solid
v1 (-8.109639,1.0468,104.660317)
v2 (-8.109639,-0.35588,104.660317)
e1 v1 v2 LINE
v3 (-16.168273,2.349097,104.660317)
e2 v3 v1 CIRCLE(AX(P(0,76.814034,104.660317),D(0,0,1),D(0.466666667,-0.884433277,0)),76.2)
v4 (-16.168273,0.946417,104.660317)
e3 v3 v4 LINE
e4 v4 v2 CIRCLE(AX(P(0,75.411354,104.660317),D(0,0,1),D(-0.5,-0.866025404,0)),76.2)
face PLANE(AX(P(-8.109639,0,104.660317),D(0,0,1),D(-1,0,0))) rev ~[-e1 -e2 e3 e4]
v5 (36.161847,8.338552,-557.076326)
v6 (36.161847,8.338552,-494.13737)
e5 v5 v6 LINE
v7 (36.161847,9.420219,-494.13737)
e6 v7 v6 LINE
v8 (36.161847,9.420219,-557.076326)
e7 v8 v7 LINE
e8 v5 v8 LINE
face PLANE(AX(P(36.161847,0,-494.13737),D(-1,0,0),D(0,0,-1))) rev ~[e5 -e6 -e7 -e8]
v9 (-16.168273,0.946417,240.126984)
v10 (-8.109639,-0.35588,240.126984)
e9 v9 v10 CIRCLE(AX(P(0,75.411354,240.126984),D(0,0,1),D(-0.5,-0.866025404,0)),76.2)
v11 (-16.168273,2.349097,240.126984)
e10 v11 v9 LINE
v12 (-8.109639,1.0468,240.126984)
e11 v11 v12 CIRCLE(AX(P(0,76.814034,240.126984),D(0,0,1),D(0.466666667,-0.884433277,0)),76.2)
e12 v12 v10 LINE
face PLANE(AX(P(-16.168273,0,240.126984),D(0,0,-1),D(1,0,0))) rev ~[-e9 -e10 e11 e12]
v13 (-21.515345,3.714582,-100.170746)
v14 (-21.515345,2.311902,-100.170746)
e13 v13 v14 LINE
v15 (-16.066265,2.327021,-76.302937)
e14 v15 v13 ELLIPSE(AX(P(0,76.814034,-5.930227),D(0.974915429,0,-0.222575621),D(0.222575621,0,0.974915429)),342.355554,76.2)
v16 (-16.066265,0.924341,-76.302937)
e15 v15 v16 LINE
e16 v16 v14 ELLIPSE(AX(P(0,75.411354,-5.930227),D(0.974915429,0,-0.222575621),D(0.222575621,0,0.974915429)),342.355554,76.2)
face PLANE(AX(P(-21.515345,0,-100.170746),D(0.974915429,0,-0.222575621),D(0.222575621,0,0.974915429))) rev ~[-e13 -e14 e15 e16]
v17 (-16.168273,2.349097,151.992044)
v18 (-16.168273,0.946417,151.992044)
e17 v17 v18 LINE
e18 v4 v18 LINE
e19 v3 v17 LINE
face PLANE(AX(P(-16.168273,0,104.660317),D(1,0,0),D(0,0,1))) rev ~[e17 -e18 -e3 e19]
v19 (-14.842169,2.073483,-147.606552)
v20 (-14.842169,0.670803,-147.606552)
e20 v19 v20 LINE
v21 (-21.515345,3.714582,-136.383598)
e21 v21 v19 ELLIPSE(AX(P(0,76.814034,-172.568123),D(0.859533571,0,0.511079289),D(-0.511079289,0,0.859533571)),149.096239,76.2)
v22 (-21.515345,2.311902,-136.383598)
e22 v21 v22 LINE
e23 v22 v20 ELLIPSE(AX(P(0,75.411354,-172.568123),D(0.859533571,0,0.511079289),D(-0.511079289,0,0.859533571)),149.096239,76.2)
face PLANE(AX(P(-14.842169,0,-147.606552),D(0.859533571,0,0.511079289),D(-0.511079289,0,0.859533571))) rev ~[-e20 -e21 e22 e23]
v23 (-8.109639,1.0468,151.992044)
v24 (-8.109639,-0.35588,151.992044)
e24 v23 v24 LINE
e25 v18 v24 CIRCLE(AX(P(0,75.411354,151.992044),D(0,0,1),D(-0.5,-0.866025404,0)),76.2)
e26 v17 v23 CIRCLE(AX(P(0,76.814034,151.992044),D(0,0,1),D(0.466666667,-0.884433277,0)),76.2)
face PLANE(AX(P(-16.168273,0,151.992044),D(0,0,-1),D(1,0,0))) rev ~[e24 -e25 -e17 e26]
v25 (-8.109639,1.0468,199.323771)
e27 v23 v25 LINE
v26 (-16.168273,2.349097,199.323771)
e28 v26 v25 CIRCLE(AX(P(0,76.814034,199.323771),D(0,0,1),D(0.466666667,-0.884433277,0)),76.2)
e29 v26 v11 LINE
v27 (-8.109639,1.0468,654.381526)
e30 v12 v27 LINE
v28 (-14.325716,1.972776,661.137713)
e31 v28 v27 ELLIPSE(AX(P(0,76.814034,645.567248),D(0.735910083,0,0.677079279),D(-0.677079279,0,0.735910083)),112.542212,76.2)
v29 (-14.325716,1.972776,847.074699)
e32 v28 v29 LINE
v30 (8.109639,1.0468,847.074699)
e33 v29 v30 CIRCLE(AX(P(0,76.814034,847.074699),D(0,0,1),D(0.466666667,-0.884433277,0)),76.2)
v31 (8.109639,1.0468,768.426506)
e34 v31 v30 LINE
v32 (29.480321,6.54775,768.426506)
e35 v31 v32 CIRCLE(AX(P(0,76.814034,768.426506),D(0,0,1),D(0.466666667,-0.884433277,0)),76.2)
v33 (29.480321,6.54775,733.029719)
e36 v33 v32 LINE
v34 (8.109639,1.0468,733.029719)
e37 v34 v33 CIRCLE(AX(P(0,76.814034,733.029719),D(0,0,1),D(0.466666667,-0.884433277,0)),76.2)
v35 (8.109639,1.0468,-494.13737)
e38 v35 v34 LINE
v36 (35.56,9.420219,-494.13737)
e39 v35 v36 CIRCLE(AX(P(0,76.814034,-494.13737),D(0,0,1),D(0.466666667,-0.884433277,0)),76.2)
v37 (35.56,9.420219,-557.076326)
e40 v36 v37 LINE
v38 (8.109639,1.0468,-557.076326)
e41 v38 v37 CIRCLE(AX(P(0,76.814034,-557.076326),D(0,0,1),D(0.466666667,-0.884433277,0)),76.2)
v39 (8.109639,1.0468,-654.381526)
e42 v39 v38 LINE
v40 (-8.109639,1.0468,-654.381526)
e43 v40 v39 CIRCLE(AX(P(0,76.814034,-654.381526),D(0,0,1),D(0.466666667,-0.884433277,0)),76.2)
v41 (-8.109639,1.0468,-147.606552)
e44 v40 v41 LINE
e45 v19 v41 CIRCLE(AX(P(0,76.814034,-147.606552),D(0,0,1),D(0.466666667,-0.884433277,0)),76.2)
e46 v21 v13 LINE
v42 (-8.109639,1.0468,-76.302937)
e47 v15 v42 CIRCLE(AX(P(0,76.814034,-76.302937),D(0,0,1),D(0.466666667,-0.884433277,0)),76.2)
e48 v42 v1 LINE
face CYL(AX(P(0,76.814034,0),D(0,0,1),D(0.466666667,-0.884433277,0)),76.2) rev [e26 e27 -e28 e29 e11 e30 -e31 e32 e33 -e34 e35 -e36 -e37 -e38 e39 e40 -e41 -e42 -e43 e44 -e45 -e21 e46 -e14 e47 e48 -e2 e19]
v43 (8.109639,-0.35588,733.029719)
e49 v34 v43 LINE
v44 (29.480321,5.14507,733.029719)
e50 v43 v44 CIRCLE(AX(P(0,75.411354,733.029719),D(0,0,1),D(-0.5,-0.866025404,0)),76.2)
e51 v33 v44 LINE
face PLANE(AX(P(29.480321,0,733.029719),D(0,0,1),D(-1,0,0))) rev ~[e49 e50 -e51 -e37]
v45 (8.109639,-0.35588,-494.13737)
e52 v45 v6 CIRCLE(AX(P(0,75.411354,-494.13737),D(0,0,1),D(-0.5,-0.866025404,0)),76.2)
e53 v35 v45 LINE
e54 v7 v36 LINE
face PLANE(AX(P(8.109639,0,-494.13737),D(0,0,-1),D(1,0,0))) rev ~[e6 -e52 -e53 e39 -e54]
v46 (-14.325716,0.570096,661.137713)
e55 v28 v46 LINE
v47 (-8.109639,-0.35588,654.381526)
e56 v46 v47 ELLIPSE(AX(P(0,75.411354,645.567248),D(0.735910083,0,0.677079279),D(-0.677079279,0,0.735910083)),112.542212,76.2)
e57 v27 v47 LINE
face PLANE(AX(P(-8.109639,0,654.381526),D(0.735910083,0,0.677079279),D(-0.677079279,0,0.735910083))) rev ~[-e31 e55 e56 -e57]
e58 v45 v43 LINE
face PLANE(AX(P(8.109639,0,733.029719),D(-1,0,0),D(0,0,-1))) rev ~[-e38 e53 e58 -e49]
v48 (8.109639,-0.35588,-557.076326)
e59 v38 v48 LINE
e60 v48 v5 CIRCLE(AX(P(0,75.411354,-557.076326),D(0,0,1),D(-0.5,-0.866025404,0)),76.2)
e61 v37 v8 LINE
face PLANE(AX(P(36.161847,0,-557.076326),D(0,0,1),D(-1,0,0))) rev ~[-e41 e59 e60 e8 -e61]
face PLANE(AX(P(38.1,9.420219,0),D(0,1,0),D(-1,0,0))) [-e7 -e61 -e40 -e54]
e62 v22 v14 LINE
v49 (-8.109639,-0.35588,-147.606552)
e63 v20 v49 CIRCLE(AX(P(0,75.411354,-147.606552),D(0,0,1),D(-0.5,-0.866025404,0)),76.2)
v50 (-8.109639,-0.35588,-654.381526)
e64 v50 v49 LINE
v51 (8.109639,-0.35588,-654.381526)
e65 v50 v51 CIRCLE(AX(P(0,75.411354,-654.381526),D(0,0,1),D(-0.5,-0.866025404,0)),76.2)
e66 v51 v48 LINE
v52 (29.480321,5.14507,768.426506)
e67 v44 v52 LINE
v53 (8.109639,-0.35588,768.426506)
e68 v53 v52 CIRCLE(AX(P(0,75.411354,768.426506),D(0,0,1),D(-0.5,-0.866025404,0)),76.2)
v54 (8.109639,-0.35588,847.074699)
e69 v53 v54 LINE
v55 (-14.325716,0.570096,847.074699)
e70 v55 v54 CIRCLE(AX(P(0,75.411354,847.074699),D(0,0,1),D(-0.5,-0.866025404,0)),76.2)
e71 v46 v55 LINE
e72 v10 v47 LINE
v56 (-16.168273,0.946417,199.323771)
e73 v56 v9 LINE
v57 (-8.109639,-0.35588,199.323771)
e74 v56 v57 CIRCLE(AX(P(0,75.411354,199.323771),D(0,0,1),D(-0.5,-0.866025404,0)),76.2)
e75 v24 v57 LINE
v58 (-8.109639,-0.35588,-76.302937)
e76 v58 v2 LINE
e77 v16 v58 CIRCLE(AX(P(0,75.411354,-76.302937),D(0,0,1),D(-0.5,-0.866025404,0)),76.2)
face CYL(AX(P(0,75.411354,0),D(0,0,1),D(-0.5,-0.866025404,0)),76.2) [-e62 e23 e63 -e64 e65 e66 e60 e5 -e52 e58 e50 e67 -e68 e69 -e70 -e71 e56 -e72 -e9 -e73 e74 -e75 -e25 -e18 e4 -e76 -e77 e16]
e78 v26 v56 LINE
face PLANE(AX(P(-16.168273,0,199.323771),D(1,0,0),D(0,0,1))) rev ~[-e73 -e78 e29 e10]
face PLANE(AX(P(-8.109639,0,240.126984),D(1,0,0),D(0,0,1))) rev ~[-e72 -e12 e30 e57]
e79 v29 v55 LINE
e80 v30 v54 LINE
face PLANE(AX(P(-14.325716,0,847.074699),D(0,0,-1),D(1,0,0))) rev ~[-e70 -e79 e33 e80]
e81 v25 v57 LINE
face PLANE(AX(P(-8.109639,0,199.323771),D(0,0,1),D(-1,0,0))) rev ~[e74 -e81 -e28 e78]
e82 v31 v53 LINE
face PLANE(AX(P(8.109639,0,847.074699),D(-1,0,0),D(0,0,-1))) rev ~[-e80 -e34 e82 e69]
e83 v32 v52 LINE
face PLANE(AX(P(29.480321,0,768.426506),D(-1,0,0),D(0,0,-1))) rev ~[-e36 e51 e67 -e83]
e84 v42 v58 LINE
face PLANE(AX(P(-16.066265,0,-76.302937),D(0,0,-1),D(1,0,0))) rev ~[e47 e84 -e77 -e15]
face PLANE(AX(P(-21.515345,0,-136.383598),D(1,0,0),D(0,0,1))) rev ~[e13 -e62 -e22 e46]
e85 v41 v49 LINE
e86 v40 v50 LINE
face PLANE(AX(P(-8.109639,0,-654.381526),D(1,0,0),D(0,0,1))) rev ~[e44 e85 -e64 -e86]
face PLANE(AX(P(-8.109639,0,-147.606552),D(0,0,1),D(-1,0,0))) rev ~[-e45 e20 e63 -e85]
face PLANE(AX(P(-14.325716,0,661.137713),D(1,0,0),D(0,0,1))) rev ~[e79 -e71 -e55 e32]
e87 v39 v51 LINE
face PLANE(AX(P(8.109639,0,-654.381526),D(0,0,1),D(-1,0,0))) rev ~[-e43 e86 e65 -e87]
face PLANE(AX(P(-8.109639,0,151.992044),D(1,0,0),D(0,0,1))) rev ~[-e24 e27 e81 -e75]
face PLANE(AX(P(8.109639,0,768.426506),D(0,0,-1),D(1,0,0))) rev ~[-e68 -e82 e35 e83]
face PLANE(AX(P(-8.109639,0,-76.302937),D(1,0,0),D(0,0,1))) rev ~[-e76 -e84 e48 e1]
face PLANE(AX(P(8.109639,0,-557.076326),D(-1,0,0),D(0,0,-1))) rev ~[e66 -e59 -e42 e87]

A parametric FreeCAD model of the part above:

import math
import FreeCAD as App
import Part
import Sketcher
Q = App.Units.Quantity

doc = App.newDocument("Part")
body = doc.addObject("PartDesign::Body", "Body")

# Sketch on XY plane
sketch1 = doc.addObject("Sketcher::SketchObject", "Sketch")
body.addObject(sketch1)
sketch1.AttachmentSupport = (doc.XY_Plane, [""])
sketch1.MapMode = "FlatFace"
sketch1.addGeometry([
    Part.LineSegment(App.Vector(-35.6, 9.4, 0), App.Vector(-38.1, 9.4, 0)),  # 0
    Part.ArcOfCircle(Part.Circle(App.Vector(0, 75.4, 0), App.Vector(0, 0, 1), 76.2), math.radians(-120), math.radians(-90)),  # 1
    Part.ArcOfCircle(Part.Circle(App.Vector(0, 75.4, 0), App.Vector(0, 0, 1), 76.2), math.radians(-90), math.radians(-60)),  # 2
    Part.LineSegment(App.Vector(38.1, 9.4, 0), App.Vector(35.6, 9.4, 0)),  # 3
    Part.ArcOfCircle(Part.Circle(App.Vector(0, 76.8, 0), App.Vector(0, 0, 1), 76.2), math.radians(-118), math.radians(-62)),  # 4
], False)
sketch1.addConstraint([
    Sketcher.Constraint("Coincident", 0, 2, 1, 1),
    Sketcher.Constraint("Tangent", 1, 2, 2, 1),
    Sketcher.Constraint("Coincident", 2, 2, 3, 1),
    Sketcher.Constraint("Coincident", 3, 2, 4, 2),
    Sketcher.Constraint("Coincident", 4, 1, 0, 1),
    Sketcher.Constraint("Horizontal", 0),
    Sketcher.Constraint("Horizontal", 3),
    Sketcher.Constraint("Equal", 1, 2),
    Sketcher.Constraint("Equal", 2, 4),
    Sketcher.Constraint("Symmetric", 0, 2, 2, 2, -2),
    Sketcher.Constraint("PointOnObject", 4, 3, -2),
    Sketcher.Constraint("PointOnObject", 1, 2, -2),
    Sketcher.Constraint("Radius", 1, Q("3 in")),
    Sketcher.Constraint("DistanceX", 0, 2, 0, 1, Q("0.1 in")),
    Sketcher.Constraint("DistanceX", 0, 2, 2, 2, Q("3 in")),
    Sketcher.Constraint("DistanceY", -1, 1, 0, 2, 9.420219),
])
pad1 = doc.addObject("PartDesign::Pad", "Pad")
body.addObject(pad1)
pad1.Profile = sketch1
pad1.Length = Q("100 in")
pad1.Midplane = True

# Sketch on XZ plane
sketch2 = doc.addObject("Sketcher::SketchObject", "Sketch001")
body.addObject(sketch2)
sketch2.AttachmentSupport = (doc.XZ_Plane, [""])
sketch2.MapMode = "FlatFace"
sketch2.addGeometry([
    Part.LineSegment(App.Vector(-936, 1614, 0), App.Vector(-936, -1499, 0)),  # 0
    Part.LineSegment(App.Vector(-936, -1499, 0), App.Vector(1044, -1499, 0)),  # 1
    Part.LineSegment(App.Vector(1044, -1499, 0), App.Vector(1044, 1614, 0)),  # 2
    Part.LineSegment(App.Vector(1044, 1614, 0), App.Vector(-936, 1614, 0)),  # 3
    Part.LineSegment(App.Vector(36, -557, 0), App.Vector(8, -557, 0)),  # 4
    Part.LineSegment(App.Vector(8, -557, 0), App.Vector(8, -654, 0)),  # 5
    Part.LineSegment(App.Vector(8, -654, 0), App.Vector(-8, -654, 0)),  # 6
    Part.LineSegment(App.Vector(-8, -654, 0), App.Vector(-8, -148, 0)),  # 7
    Part.LineSegment(App.Vector(-8, -148, 0), App.Vector(-15, -148, 0)),  # 8
    Part.LineSegment(App.Vector(-15, -148, 0), App.Vector(-22, -136, 0)),  # 9
    Part.LineSegment(App.Vector(-22, -136, 0), App.Vector(-22, -100, 0)),  # 10
    Part.LineSegment(App.Vector(-22, -100, 0), App.Vector(-16, -76, 0)),  # 11
    Part.LineSegment(App.Vector(-16, -76, 0), App.Vector(-8, -76, 0)),  # 12
    Part.LineSegment(App.Vector(-8, -76, 0), App.Vector(-8, 105, 0)),  # 13
    Part.LineSegment(App.Vector(-8, 105, 0), App.Vector(-16, 105, 0)),  # 14
    Part.LineSegment(App.Vector(-16, 105, 0), App.Vector(-16, 152, 0)),  # 15
    Part.LineSegment(App.Vector(-16, 152, 0), App.Vector(-8, 152, 0)),  # 16
    Part.LineSegment(App.Vector(-8, 152, 0), App.Vector(-8, 199, 0)),  # 17
    Part.LineSegment(App.Vector(-8, 199, 0), App.Vector(-16, 199, 0)),  # 18
    Part.LineSegment(App.Vector(-16, 199, 0), App.Vector(-16, 240, 0)),  # 19
    Part.LineSegment(App.Vector(-16, 240, 0), App.Vector(-8, 240, 0)),  # 20
    Part.LineSegment(App.Vector(-8, 240, 0), App.Vector(-8, 654, 0)),  # 21
    Part.LineSegment(App.Vector(-8, 654, 0), App.Vector(-14, 661, 0)),  # 22
    Part.LineSegment(App.Vector(-14, 661, 0), App.Vector(-14, 847, 0)),  # 23
    Part.LineSegment(App.Vector(-14, 847, 0), App.Vector(8, 847, 0)),  # 24
    Part.LineSegment(App.Vector(8, 847, 0), App.Vector(8, 768, 0)),  # 25
    Part.LineSegment(App.Vector(8, 768, 0), App.Vector(29, 768, 0)),  # 26
    Part.LineSegment(App.Vector(29, 768, 0), App.Vector(29, 733, 0)),  # 27
    Part.LineSegment(App.Vector(29, 733, 0), App.Vector(8, 733, 0)),  # 28
    Part.LineSegment(App.Vector(8, 733, 0), App.Vector(8, -494, 0)),  # 29
    Part.LineSegment(App.Vector(8, -494, 0), App.Vector(36, -494, 0)),  # 30
    Part.LineSegment(App.Vector(36, -494, 0), App.Vector(36, -557, 0)),  # 31
], False)
sketch2.addConstraint([
    Sketcher.Constraint("Coincident", 0, 2, 1, 1),
    Sketcher.Constraint("Coincident", 1, 2, 2, 1),
    Sketcher.Constraint("Coincident", 2, 2, 3, 1),
    Sketcher.Constraint("Coincident", 3, 2, 0, 1),
    Sketcher.Constraint("Coincident", 4, 2, 5, 1),
    Sketcher.Constraint("Coincident", 5, 2, 6, 1),
    Sketcher.Constraint("Coincident", 6, 2, 7, 1),
    Sketcher.Constraint("Coincident", 7, 2, 8, 1),
    Sketcher.Constraint("Coincident", 8, 2, 9, 1),
    Sketcher.Constraint("Coincident", 9, 2, 10, 1),
    Sketcher.Constraint("Coincident", 10, 2, 11, 1),
    Sketcher.Constraint("Coincident", 11, 2, 12, 1),
    Sketcher.Constraint("Coincident", 12, 2, 13, 1),
    Sketcher.Constraint("Coincident", 13, 2, 14, 1),
    Sketcher.Constraint("Coincident", 14, 2, 15, 1),
    Sketcher.Constraint("Coincident", 15, 2, 16, 1),
    Sketcher.Constraint("Coincident", 16, 2, 17, 1),
    Sketcher.Constraint("Coincident", 17, 2, 18, 1),
    Sketcher.Constraint("Coincident", 18, 2, 19, 1),
    Sketcher.Constraint("Coincident", 19, 2, 20, 1),
    Sketcher.Constraint("Coincident", 20, 2, 21, 1),
    Sketcher.Constraint("Coincident", 21, 2, 22, 1),
    Sketcher.Constraint("Coincident", 22, 2, 23, 1),
    Sketcher.Constraint("Coincident", 23, 2, 24, 1),
    Sketcher.Constraint("Coincident", 24, 2, 25, 1),
    Sketcher.Constraint("Coincident", 25, 2, 26, 1),
    Sketcher.Constraint("Coincident", 26, 2, 27, 1),
    Sketcher.Constraint("Coincident", 27, 2, 28, 1),
    Sketcher.Constraint("Coincident", 28, 2, 29, 1),
    Sketcher.Constraint("Coincident", 29, 2, 30, 1),
    Sketcher.Constraint("Coincident", 30, 2, 31, 1),
    Sketcher.Constraint("Coincident", 31, 2, 4, 1),
    Sketcher.Constraint("Vertical", 0),
    Sketcher.Constraint("Horizontal", 1),
    Sketcher.Constraint("Vertical", 2),
    Sketcher.Constraint("Horizontal", 3),
    Sketcher.Constraint("Horizontal", 4),
    Sketcher.Constraint("Vertical", 5),
    Sketcher.Constraint("Horizontal", 6),
    Sketcher.Constraint("Vertical", 7),
    Sketcher.Constraint("Horizontal", 8),
    Sketcher.Constraint("Vertical", 10),
    Sketcher.Constraint("Horizontal", 12),
    Sketcher.Constraint("Vertical", 13),
    Sketcher.Constraint("Horizontal", 14),
    Sketcher.Constraint("Vertical", 15),
    Sketcher.Constraint("Horizontal", 16),
    Sketcher.Constraint("Vertical", 17),
    Sketcher.Constraint("Horizontal", 18),
    Sketcher.Constraint("Vertical", 19),
    Sketcher.Constraint("Horizontal", 20),
    Sketcher.Constraint("Vertical", 21),
    Sketcher.Constraint("Vertical", 23),
    Sketcher.Constraint("Horizontal", 24),
    Sketcher.Constraint("Vertical", 25),
    Sketcher.Constraint("Horizontal", 26),
    Sketcher.Constraint("Vertical", 27),
    Sketcher.Constraint("Horizontal", 28),
    Sketcher.Constraint("Vertical", 29),
    Sketcher.Constraint("Horizontal", 30),
    Sketcher.Constraint("Vertical", 31),
    Sketcher.Constraint("Symmetric", 5, 2, 21, 2, -1, 1),
    Sketcher.Constraint("Vertical", 7, 2, 12, 2),
    Sketcher.Constraint("Vertical", 13, 2, 16, 2),
    Sketcher.Constraint("Vertical", 15, 2, 18, 2),
    Sketcher.Constraint("Vertical", 17, 2, 20, 2),
    Sketcher.Constraint("Vertical", 5, 2, 24, 2),
    Sketcher.Constraint("Vertical", 25, 2, 28, 2),
    Sketcher.Constraint("Equal", 15, 17),
    Sketcher.Constraint("DistanceY", 5, 2, 5, 1, 97.3052),
    Sketcher.Constraint("DistanceX", 1, 1, 1, 2, 1980.14015),
    Sketcher.Constraint("DistanceX", 4, 2, 4, 1, 28.052209),
    Sketcher.Constraint("DistanceX", 8, 2, 8, 1, 6.73253),
    Sketcher.Constraint("DistanceY", 10, 1, 10, 2, 36.212851),
    Sketcher.Constraint("DistanceY", 29, 2, 29, 1, 1227.167089),
    Sketcher.Constraint("DistanceY", -1, 1, 23, 2, 847.074699),
    Sketcher.Constraint("Distance", 9, 13.057028),
    Sketcher.Constraint("DistanceX", 6, 2, 6, 1, 16.219277),
    Sketcher.Constraint("DistanceX", 12, 1, 12, 2, 7.956627),
    Sketcher.Constraint("DistanceX", 14, 2, 14, 1, 8.058635),
    Sketcher.Constraint("DistanceX", 24, 1, 24, 2, 22.435354),
    Sketcher.Constraint("DistanceX", 26, 1, 26, 2, 21.370683),
    Sketcher.Constraint("DistanceY", 0, 2, 0, 1, 3113.604546),
    Sketcher.Constraint("DistanceY", 7, 1, 7, 2, 506.774974),
    Sketcher.Constraint("DistanceY", 13, 1, 13, 2, 180.963255),
    Sketcher.Constraint("DistanceY", 15, 1, 15, 2, 47.331727),
    Sketcher.Constraint("DistanceY", 19, 1, 19, 2, 40.803213),
    Sketcher.Constraint("DistanceY", 21, 1, 21, 2, 414.254542),
    Sketcher.Constraint("DistanceY", 23, 1, 23, 2, 185.936986),
    Sketcher.Constraint("DistanceY", 25, 2, 25, 1, 78.648193),
    Sketcher.Constraint("DistanceY", 27, 2, 27, 1, 35.396787),
    Sketcher.Constraint("DistanceY", 31, 2, 31, 1, 62.938956),
    Sketcher.Constraint("DistanceX", 0, 2, -1, 1, 936.437309),
    Sketcher.Constraint("DistanceY", 4, 2, 3, 2, 2171.493879),
    Sketcher.Constraint("DistanceY", 6, 2, 9, 2, 517.997928),
])
pocket1 = doc.addObject("PartDesign::Pocket", "Pocket")
body.addObject(pocket1)
pocket1.Profile = sketch2
pocket1.Length = Q("23.6 in")
pocket1.Midplane = True

doc.recompute()
